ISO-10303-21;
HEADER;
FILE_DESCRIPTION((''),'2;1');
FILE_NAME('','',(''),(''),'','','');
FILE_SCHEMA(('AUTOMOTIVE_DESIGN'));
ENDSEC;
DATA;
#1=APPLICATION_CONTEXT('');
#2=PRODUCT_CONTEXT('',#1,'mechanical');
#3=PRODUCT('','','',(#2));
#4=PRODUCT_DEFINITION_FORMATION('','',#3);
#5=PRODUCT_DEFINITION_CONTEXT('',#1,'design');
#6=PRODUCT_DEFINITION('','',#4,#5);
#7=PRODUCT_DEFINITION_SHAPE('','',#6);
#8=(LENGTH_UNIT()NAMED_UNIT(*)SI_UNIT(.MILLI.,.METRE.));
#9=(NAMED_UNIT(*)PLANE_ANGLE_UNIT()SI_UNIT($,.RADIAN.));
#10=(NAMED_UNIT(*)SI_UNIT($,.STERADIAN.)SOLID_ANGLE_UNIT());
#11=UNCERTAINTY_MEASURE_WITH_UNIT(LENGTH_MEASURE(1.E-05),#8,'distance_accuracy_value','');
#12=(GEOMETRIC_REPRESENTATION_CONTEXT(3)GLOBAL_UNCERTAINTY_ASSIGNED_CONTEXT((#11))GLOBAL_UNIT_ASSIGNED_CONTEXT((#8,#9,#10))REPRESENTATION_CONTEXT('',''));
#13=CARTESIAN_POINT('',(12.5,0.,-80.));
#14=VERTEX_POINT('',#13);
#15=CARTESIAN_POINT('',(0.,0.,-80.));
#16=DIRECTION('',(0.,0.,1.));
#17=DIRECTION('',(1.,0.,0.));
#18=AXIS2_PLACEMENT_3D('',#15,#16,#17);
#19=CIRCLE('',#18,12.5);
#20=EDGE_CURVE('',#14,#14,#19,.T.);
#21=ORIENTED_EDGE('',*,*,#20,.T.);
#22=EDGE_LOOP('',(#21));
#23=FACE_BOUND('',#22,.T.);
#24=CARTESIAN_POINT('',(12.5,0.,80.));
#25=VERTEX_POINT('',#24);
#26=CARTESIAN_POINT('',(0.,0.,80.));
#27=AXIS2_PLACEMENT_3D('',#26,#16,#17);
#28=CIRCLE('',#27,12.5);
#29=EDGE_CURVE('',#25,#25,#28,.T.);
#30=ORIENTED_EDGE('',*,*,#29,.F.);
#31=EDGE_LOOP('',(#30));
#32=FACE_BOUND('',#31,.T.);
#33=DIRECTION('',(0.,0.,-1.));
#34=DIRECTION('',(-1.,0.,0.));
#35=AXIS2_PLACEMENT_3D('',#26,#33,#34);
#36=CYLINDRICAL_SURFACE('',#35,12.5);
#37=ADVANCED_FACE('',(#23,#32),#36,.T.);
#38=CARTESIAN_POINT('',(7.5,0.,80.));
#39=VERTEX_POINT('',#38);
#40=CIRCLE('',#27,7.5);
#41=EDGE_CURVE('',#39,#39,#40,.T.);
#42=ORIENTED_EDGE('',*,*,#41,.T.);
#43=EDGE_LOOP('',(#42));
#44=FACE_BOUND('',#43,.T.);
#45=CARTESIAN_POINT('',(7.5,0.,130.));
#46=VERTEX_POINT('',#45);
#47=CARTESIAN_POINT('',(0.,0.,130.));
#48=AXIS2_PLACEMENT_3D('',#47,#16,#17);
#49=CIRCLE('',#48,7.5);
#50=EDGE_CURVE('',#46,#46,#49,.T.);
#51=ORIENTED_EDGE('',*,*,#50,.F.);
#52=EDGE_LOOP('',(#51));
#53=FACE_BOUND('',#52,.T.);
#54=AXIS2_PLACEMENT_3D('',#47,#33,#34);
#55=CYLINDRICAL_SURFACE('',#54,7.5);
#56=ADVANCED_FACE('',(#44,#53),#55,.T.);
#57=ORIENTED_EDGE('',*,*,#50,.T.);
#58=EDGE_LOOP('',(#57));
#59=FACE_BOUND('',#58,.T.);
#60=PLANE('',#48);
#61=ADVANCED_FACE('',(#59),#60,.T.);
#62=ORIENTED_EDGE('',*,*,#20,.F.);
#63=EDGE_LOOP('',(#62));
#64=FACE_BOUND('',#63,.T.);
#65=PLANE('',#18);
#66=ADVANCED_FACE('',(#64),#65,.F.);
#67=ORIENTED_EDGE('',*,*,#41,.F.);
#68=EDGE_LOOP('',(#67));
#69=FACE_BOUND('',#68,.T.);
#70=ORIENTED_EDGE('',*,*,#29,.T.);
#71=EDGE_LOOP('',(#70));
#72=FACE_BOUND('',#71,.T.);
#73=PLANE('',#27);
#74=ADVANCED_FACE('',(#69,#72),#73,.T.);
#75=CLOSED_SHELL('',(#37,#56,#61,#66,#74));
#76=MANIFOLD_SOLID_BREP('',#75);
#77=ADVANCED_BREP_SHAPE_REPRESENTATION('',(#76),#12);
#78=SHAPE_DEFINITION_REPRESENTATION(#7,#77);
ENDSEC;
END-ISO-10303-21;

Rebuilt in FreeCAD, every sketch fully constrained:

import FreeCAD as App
import Part
import Sketcher

doc = App.newDocument("Part")
body = doc.addObject("PartDesign::Body", "Body")

sketch1 = body.newObject("Sketcher::SketchObject", "Sketch")
sketch1.AttachmentSupport = (doc.getObject("XY_Plane"), [""])
sketch1.MapMode = "FlatFace"
sketch1.addGeometry(Part.Circle(App.Vector(0, 0, 0), App.Vector(0, 0, 1), 12), False)
sketch1.addConstraint([
    Sketcher.Constraint("Coincident", 0, 3, -1, 1),
    Sketcher.Constraint("Diameter", 0, 25.0),
])
pad1 = body.newObject("PartDesign::Pad", "Pad")
pad1.Profile = sketch1
pad1.Length = 160
pad1.Midplane = True

sketch2 = body.newObject("Sketcher::SketchObject", "Sketch001")
sketch2.AttachmentSupport = (doc.getObject("XY_Plane"), [""])
sketch2.MapMode = "FlatFace"
sketch2.AttachmentOffset = App.Placement(App.Vector(0, 0, 80), App.Rotation())
sketch2.addGeometry(Part.Circle(App.Vector(0, 0, 0), App.Vector(0, 0, 1), 8), False)
sketch2.addConstraint([
    Sketcher.Constraint("Coincident", 0, 3, -1, 1),
    Sketcher.Constraint("Diameter", 0, 15.0),
])
pad2 = body.newObject("PartDesign::Pad", "Pad001")
pad2.Profile = sketch2
pad2.Length = 50

doc.recompute()
